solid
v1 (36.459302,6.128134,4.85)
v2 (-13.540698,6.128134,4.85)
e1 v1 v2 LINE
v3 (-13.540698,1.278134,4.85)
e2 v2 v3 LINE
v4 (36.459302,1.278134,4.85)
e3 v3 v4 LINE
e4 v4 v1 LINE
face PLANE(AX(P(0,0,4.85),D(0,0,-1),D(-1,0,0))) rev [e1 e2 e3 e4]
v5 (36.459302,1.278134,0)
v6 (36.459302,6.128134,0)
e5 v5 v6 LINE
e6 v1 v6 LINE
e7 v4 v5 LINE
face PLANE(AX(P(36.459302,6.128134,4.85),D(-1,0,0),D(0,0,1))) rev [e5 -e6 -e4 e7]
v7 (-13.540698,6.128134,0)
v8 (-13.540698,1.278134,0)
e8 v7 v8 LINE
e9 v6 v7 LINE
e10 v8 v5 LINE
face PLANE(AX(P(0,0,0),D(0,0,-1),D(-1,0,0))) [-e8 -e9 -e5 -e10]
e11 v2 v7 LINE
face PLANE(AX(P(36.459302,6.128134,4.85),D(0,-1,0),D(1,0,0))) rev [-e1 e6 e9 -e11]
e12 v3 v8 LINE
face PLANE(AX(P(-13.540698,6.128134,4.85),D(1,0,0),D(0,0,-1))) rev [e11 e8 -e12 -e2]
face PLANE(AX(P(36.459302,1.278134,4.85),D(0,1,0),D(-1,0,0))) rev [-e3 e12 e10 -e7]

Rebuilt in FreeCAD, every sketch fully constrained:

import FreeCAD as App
import Part
import Sketcher
from FreeCAD import Vector

doc = App.newDocument("Part")
params = doc.addObject("Spreadsheet::Sheet", "Params")
for row, (alias, value) in enumerate([
    ("sketch1_width", "50 mm"),
    ("sketch1_height", "4.85 mm"),
    ("pad1_length", "4.85 mm"),
], start=1):
    params.set(f"A{row}", alias)
    params.set(f"B{row}", "=" + value)
    params.setAlias(f"B{row}", alias)

body = doc.addObject("PartDesign::Body", "Body")

# Sketch on XY plane
sketch1 = doc.addObject("Sketcher::SketchObject", "Sketch")
body.addObject(sketch1)
sketch1.AttachmentSupport = (doc.XY_Plane, [""])
sketch1.MapMode = "FlatFace"
sketch1.addGeometry([
    Part.LineSegment(Vector(-13.540698, 6.128134, 0), Vector(-13.540698, 1.278134, 0)),
    Part.LineSegment(Vector(-13.540698, 1.278134, 0), Vector(36.459302, 1.278134, 0)),
    Part.LineSegment(Vector(36.459302, 1.278134, 0), Vector(36.459302, 6.128134, 0)),
    Part.LineSegment(Vector(36.459302, 6.128134, 0), Vector(-13.540698, 6.128134, 0)),
], False)
sketch1.addConstraint([
    Sketcher.Constraint("Coincident", 0, 2, 1, 1),
    Sketcher.Constraint("Coincident", 1, 2, 2, 1),
    Sketcher.Constraint("Coincident", 2, 2, 3, 1),
    Sketcher.Constraint("Coincident", 3, 2, 0, 1),
    Sketcher.Constraint("Vertical", 0),
    Sketcher.Constraint("Horizontal", 1),
    Sketcher.Constraint("Vertical", 2),
    Sketcher.Constraint("Horizontal", 3),
    Sketcher.Constraint("DistanceX", 1, 1, 1, 2, 50.0),
    Sketcher.Constraint("DistanceY", 0, 2, 0, 1, 4.85),
    Sketcher.Constraint("DistanceX", 0, 2, -1, 1, 13.540698),
    Sketcher.Constraint("DistanceY", -1, 1, 0, 2, 1.278134),
])
sketch1.setExpression("Constraints[8]", "Params.sketch1_width")
sketch1.setExpression("Constraints[9]", "Params.sketch1_height")
pad1 = doc.addObject("PartDesign::Pad", "Pad")
body.addObject(pad1)
pad1.Profile = sketch1
pad1.setExpression("Length", "Params.pad1_length")

doc.recompute()
